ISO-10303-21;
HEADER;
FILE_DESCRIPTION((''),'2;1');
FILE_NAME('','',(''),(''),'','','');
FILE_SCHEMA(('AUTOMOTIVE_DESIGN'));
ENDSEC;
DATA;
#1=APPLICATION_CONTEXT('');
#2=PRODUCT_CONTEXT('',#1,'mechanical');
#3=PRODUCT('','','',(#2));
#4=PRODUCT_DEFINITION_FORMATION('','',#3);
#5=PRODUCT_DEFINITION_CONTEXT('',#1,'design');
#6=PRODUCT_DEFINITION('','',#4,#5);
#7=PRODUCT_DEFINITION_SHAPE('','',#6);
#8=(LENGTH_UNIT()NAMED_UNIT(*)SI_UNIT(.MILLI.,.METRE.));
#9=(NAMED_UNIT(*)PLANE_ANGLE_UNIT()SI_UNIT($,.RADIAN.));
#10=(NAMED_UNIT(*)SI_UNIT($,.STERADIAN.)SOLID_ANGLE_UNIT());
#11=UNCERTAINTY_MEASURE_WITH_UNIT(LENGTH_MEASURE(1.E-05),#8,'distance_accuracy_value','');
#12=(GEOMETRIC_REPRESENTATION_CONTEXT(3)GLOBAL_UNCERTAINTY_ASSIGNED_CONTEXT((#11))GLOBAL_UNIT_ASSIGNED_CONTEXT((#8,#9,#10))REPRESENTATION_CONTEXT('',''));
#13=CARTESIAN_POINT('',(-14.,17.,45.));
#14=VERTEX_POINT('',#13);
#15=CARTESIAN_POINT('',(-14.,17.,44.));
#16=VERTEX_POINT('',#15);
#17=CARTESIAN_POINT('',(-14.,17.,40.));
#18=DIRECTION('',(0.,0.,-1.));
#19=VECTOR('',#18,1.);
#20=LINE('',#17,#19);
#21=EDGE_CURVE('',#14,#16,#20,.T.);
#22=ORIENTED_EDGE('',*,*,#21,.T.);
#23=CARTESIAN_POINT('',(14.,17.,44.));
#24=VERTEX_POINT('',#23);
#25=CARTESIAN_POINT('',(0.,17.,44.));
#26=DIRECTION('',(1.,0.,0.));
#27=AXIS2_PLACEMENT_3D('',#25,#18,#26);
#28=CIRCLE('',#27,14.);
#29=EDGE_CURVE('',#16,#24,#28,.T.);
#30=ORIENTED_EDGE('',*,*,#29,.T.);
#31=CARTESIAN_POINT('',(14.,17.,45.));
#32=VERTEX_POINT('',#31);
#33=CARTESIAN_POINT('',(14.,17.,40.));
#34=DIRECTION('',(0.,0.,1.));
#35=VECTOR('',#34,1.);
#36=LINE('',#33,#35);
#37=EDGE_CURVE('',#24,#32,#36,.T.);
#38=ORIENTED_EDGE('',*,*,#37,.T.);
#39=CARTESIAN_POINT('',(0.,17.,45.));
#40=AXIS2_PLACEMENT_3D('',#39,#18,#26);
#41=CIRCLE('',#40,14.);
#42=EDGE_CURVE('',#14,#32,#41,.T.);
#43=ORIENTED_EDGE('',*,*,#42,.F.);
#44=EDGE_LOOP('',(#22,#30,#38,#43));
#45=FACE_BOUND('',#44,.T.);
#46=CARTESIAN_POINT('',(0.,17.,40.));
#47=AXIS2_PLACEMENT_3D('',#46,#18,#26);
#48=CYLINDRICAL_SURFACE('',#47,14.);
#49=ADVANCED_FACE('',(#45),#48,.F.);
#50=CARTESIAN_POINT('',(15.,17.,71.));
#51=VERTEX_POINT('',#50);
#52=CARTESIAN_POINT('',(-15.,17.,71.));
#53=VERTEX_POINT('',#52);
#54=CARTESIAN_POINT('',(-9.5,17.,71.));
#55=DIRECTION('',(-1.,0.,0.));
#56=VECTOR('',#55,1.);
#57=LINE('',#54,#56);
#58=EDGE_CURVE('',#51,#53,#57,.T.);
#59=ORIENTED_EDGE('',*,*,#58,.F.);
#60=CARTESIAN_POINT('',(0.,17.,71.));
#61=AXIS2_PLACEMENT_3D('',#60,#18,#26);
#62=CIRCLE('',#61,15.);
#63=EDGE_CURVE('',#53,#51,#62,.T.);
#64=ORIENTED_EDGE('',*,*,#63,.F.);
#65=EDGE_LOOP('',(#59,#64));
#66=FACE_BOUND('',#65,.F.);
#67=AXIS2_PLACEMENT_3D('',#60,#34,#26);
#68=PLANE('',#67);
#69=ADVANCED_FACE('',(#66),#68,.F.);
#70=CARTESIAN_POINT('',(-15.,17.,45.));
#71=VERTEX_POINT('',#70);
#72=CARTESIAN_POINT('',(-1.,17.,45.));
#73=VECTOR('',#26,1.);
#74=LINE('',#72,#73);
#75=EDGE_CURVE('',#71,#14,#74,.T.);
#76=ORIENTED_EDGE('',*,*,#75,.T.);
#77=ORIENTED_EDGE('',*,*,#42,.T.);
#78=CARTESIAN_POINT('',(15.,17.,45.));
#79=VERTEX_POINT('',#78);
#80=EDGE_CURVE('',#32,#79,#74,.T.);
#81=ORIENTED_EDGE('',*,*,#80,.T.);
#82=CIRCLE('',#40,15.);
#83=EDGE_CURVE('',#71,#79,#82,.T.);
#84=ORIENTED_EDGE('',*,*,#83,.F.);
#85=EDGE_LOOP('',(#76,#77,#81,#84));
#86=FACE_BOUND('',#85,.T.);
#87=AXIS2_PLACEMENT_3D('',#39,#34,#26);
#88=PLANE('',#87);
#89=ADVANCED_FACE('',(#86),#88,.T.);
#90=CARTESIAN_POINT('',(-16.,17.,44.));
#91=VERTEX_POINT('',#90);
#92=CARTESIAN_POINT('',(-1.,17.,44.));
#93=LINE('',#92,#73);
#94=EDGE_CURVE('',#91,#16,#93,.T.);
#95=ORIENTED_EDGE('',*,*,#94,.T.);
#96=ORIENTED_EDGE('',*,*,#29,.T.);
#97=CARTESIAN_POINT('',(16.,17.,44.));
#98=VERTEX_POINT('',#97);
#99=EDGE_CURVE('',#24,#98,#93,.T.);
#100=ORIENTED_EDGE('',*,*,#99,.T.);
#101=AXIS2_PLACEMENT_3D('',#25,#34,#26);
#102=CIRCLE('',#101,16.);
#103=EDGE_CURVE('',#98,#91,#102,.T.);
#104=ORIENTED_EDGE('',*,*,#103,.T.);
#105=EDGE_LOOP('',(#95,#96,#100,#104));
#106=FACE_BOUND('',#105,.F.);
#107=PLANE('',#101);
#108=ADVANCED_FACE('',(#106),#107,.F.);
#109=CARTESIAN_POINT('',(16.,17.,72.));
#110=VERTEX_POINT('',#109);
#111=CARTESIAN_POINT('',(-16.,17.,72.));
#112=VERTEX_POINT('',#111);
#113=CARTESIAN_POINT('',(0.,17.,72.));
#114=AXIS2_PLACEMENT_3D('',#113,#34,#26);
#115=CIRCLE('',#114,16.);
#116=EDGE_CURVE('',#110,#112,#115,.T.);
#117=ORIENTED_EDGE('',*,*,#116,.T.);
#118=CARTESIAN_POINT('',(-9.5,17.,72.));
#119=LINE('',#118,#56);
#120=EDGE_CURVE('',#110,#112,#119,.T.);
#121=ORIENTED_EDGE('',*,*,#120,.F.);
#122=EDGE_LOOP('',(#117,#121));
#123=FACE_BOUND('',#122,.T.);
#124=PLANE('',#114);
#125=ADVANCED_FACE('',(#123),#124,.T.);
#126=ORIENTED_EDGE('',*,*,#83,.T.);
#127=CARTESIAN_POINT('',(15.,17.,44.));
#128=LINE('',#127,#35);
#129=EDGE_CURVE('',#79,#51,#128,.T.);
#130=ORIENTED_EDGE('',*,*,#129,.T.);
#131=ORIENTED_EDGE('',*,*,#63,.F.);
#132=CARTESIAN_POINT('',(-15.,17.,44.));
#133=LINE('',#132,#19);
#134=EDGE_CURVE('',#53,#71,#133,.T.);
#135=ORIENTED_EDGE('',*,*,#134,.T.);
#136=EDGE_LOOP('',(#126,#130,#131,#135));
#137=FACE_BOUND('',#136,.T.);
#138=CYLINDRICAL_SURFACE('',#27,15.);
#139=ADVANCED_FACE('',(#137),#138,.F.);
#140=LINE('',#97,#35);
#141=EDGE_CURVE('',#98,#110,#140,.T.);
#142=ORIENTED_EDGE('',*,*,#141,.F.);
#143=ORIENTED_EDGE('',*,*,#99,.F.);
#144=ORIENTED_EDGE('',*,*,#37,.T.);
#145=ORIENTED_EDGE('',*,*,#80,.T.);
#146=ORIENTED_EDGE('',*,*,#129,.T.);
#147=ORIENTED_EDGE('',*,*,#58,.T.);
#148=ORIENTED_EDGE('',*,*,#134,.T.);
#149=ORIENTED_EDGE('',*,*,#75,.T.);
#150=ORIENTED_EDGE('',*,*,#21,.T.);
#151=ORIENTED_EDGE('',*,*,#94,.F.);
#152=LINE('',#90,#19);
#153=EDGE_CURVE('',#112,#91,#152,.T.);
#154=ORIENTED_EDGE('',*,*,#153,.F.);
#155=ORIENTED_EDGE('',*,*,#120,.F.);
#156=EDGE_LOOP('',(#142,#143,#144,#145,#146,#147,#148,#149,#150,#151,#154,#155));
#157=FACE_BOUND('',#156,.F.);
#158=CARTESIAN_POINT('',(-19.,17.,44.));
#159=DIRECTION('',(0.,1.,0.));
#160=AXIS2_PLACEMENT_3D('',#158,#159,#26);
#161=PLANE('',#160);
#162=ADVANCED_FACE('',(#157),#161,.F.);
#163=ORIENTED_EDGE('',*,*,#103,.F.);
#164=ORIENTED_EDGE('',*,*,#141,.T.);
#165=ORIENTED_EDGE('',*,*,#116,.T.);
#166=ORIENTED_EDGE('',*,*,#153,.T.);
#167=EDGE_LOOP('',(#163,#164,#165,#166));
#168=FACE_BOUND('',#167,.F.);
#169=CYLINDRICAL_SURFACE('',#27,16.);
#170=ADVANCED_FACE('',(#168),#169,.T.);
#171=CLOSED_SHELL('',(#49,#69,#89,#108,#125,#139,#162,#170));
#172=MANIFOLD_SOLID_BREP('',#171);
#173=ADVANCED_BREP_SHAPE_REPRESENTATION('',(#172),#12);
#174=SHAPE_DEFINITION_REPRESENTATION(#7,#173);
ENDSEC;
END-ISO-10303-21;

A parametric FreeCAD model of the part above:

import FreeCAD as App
import Part
import Sketcher
from FreeCAD import Vector


def faces_at(feature, points):
    """Names of the faces that lie closest to the given points."""
    faces = feature.Shape.Faces
    near = lambda p: min(range(len(faces)), key=lambda i: faces[i].distToShape(Part.Vertex(*p))[0])
    return sorted({f"Face{near(p) + 1}" for p in points})


def add_polygon(sketch, points):
    """Adds a closed chain of lines whose ends are joined by coincident constraints."""
    first, n = sketch.GeometryCount, len(points)
    for a, b in zip(points, points[1:] + points[:1]):
        sketch.addGeometry(Part.LineSegment(App.Vector(*a, 0), App.Vector(*b, 0)), False)
    for i in range(n):
        sketch.addConstraint(Sketcher.Constraint("Coincident", first + i, 2, first + (i + 1) % n, 1))

doc = App.newDocument("Part")
params = doc.addObject("Spreadsheet::Sheet", "Params")
for row, (alias, value) in enumerate([
    ("sketch1_diameter", "28 mm"),
    ("pad1_length", "20 mm"),
    ("sketch2_width", "36 mm"),
    ("sketch2_height", "16 mm"),
    ("pad2_length", "41 mm"),
    ("sketch3_diameter", "32 mm"),
    ("pad3_length", "28 mm"),
    ("thickness_wall", "1 mm"),
], start=1):
    params.set(f"A{row}", alias)
    params.set(f"B{row}", "=" + value)
    params.setAlias(f"B{row}", alias)

body = doc.addObject("PartDesign::Body", "Body")

# Sketch on XY plane
sketch1 = body.newObject("Sketcher::SketchObject", "Sketch")
sketch1.AttachmentSupport = (doc.getObject("XY_Plane"), [""])
sketch1.MapMode = "FlatFace"
sketch1.AttachmentOffset = App.Placement(Vector(0, 0, 40), App.Rotation())
sketch1.addGeometry(Part.Circle(Vector(0, 17, 0), Vector(0, 0, 1), 14), False)
sketch1.addConstraint([
    Sketcher.Constraint("PointOnObject", 0, 3, -2),
    Sketcher.Constraint("Diameter", 0, 28.0),
    Sketcher.Constraint("DistanceY", -1, 1, 0, 3, 17.0),
])
sketch1.setExpression("Constraints[1]", "Params.sketch1_diameter")
pad1 = body.newObject("PartDesign::Pad", "Pad")
pad1.Profile = sketch1
pad1.setExpression("Length", "Params.pad1_length")
body2 = doc.addObject("PartDesign::Body", "Body001")

# Sketch on XY plane
sketch2 = body2.newObject("Sketcher::SketchObject", "Sketch001")
sketch2.AttachmentSupport = (doc.getObject("XY_Plane001"), [""])
sketch2.MapMode = "FlatFace"
sketch2.AttachmentOffset = App.Placement(Vector(0, 0, 45), App.Rotation())
add_polygon(sketch2, [(-19, 17), (-19, 1), (17, 1), (17, 17)])  # lines 0-3
sketch2.addConstraint([
    Sketcher.Constraint("Vertical", 0),
    Sketcher.Constraint("Horizontal", 1),
    Sketcher.Constraint("Vertical", 2),
    Sketcher.Constraint("Horizontal", 3),
    Sketcher.Constraint("DistanceX", 1, 1, 1, 2, 36.0),
    Sketcher.Constraint("DistanceY", 0, 2, 0, 1, 16.0),
    Sketcher.Constraint("DistanceX", 0, 2, -1, 1, 19.0),
    Sketcher.Constraint("DistanceY", -1, 1, 0, 2, 1.0),
])
sketch2.setExpression("Constraints[8]", "Params.sketch2_width")
sketch2.setExpression("Constraints[9]", "Params.sketch2_height")
pad2 = body2.newObject("PartDesign::Pad", "Pad001")
pad2.Profile = sketch2
pad2.setExpression("Length", "Params.pad2_length")
body3 = doc.addObject("PartDesign::Body", "Body002")

# Sketch on XY plane
sketch3 = body3.newObject("Sketcher::SketchObject", "Sketch002")
sketch3.AttachmentSupport = (doc.getObject("XY_Plane002"), [""])
sketch3.MapMode = "FlatFace"
sketch3.AttachmentOffset = App.Placement(Vector(0, 0, 45), App.Rotation())
sketch3.addGeometry(Part.Circle(Vector(0, 17, 0), Vector(0, 0, 1), 16), False)
sketch3.addConstraint([
    Sketcher.Constraint("PointOnObject", 0, 3, -2),
    Sketcher.Constraint("Diameter", 0, 32.0),
    Sketcher.Constraint("DistanceY", -1, 1, 0, 3, 17.0),
])
sketch3.setExpression("Constraints[1]", "Params.sketch3_diameter")
pad3 = body3.newObject("PartDesign::Pad", "Pad002")
pad3.Profile = sketch3
pad3.setExpression("Length", "Params.pad3_length")
doc.recompute()

boolean = body3.newObject("PartDesign::Boolean", "Boolean")
boolean.Type = "Cut"
boolean.addObjects([body2])
body4 = doc.addObject("PartDesign::Body", "Body003")
doc.recompute()

body3.Placement = App.Placement(Vector(0, 5, 1), App.Rotation(Vector(0, 0, 1), 0))
boolean2 = body4.newObject("PartDesign::Boolean", "Boolean001")
boolean2.Type = "Fuse"
boolean2.addObjects([body3])
doc.recompute()

thickness = body4.newObject("PartDesign::Thickness", "Thickness")
thickness.Base = (boolean2, faces_at(boolean2, [(0, 22, 60)]))
thickness.setExpression("Value", "Params.thickness_wall")
thickness.Reversed = True
thickness.Join = "Arc"
body5 = doc.addObject("PartDesign::Body", "Body004")
doc.recompute()

body4.Placement = App.Placement(Vector(0, -5, -2), App.Rotation(Vector(0, 0, 1), 0))
boolean3 = body5.newObject("PartDesign::Boolean", "Boolean002")
boolean3.Type = "Fuse"
boolean3.addObjects([body4])
doc.recompute()

boolean4 = body5.newObject("PartDesign::Boolean", "Boolean003")
boolean4.Type = "Cut"
boolean4.addObjects([body])

doc.recompute()
